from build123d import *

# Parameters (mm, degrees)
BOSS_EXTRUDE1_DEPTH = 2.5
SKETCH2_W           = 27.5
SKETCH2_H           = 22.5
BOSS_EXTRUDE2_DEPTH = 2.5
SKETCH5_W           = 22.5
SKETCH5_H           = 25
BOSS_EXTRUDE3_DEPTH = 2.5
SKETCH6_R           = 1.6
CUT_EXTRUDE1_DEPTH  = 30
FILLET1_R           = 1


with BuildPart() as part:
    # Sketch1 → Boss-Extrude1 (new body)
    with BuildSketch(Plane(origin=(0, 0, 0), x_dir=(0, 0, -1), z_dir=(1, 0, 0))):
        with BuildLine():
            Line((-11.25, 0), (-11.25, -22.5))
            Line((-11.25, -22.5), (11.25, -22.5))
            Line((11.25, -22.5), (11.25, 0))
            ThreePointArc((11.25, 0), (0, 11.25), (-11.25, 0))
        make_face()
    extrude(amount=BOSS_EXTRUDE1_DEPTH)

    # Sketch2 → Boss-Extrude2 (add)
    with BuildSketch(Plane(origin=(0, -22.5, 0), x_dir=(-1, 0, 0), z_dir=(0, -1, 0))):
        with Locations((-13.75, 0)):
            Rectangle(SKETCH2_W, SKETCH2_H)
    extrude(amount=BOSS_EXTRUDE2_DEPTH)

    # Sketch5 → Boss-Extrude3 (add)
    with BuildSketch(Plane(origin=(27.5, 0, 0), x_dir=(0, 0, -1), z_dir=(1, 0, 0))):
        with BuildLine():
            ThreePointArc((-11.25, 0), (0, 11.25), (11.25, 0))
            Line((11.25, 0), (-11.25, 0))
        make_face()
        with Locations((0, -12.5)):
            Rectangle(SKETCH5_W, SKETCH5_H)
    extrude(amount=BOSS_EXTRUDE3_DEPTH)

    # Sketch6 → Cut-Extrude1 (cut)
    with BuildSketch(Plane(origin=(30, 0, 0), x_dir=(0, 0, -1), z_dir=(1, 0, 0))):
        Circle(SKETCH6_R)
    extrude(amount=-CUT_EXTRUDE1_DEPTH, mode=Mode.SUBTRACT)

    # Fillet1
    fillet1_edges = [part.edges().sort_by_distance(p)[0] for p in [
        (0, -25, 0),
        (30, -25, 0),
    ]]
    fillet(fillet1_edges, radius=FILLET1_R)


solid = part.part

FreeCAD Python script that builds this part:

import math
import FreeCAD as App
import Part
import Sketcher
from FreeCAD import Vector


def edges_at(feature, points):
    """Names of the edges that pass closest to the given points."""
    edges = feature.Shape.Edges
    near = lambda p: min(range(len(edges)), key=lambda i: edges[i].distToShape(Part.Vertex(*p))[0])
    return sorted({f"Edge{near(p) + 1}" for p in points})

doc = App.newDocument("Part")
body = doc.addObject("PartDesign::Body", "Body")

sketch1 = body.newObject("Sketcher::SketchObject", "Sketch")
sketch1.AttachmentSupport = (doc.getObject("YZ_Plane"), [""])
sketch1.MapMode = "FlatFace"
sketch1.addGeometry(Part.LineSegment(Vector(0, 11, 0), Vector(-22, 11, 0)), False)
sketch1.addGeometry(Part.LineSegment(Vector(-22, 11, 0), Vector(-22, -11, 0)), False)
sketch1.addGeometry(Part.LineSegment(Vector(-22, -11, 0), Vector(0, -11, 0)), False)
sketch1.addGeometry(Part.ArcOfCircle(Part.Circle(Vector(0, 0, 0), Vector(0, 0, 1), 11), math.radians(-90), math.radians(90)), False)
sketch1.addConstraint(Sketcher.Constraint("Coincident", 0, 2, 1, 1))
sketch1.addConstraint(Sketcher.Constraint("Coincident", 1, 2, 2, 1))
sketch1.addConstraint(Sketcher.Constraint("Tangent", 2, 2, 3, 1))
sketch1.addConstraint(Sketcher.Constraint("Tangent", 3, 2, 0, 1))
sketch1.addConstraint(Sketcher.Constraint("Horizontal", 0))
sketch1.addConstraint(Sketcher.Constraint("Vertical", 1))
sketch1.addConstraint(Sketcher.Constraint("Horizontal", 2))
sketch1.addConstraint(Sketcher.Constraint("Coincident", 3, 3, -1, 1))
sketch1.addConstraint(Sketcher.Constraint("Equal", 2, 1))
sketch1.addConstraint(Sketcher.Constraint("Radius", 3, 11.25))
pad1 = body.newObject("PartDesign::Pad", "Pad")
pad1.Profile = sketch1
pad1.Length = 2.5

sketch2 = body.newObject("Sketcher::SketchObject", "Sketch001")
sketch2.AttachmentSupport = (doc.getObject("XZ_Plane"), [""])
sketch2.MapMode = "FlatFace"
sketch2.AttachmentOffset = App.Placement(Vector(0, 0, 22.5), App.Rotation())
sketch2.addGeometry(Part.LineSegment(Vector(28, -11, 0), Vector(28, 11, 0)), False)
sketch2.addGeometry(Part.LineSegment(Vector(28, 11, 0), Vector(0, 11, 0)), False)
sketch2.addGeometry(Part.LineSegment(Vector(0, 11, 0), Vector(0, -11, 0)), False)
sketch2.addGeometry(Part.LineSegment(Vector(0, -11, 0), Vector(28, -11, 0)), False)
sketch2.addConstraint(Sketcher.Constraint("Coincident", 0, 2, 1, 1))
sketch2.addConstraint(Sketcher.Constraint("Coincident", 1, 2, 2, 1))
sketch2.addConstraint(Sketcher.Constraint("Coincident", 2, 2, 3, 1))
sketch2.addConstraint(Sketcher.Constraint("Coincident", 3, 2, 0, 1))
sketch2.addConstraint(Sketcher.Constraint("Vertical", 0))
sketch2.addConstraint(Sketcher.Constraint("Horizontal", 1))
sketch2.addConstraint(Sketcher.Constraint("Vertical", 2))
sketch2.addConstraint(Sketcher.Constraint("Horizontal", 3))
sketch2.addConstraint(Sketcher.Constraint("Symmetric", 1, 2, 2, 2, -1, 1))
sketch2.addConstraint(Sketcher.Constraint("DistanceX", 1, 2, 1, 1, 27.5))
sketch2.addConstraint(Sketcher.Constraint("DistanceY", 0, 1, 0, 2, 22.5))
pad2 = body.newObject("PartDesign::Pad", "Pad001")
pad2.Profile = sketch2
pad2.Length = 2.5

sketch3 = body.newObject("Sketcher::SketchObject", "Sketch002")
sketch3.AttachmentSupport = (doc.getObject("YZ_Plane"), [""])
sketch3.MapMode = "FlatFace"
sketch3.AttachmentOffset = App.Placement(Vector(0, 0, 27.5), App.Rotation())
sketch3.addGeometry(Part.ArcOfCircle(Part.Circle(Vector(0, 0, 0), Vector(0, 0, 1), 11), math.radians(-90), math.radians(90)), False)
sketch3.addGeometry(Part.LineSegment(Vector(0, 11, 0), Vector(-25, 11, 0)), False)
sketch3.addGeometry(Part.LineSegment(Vector(-25, 11, 0), Vector(-25, -11, 0)), False)
sketch3.addGeometry(Part.LineSegment(Vector(-25, -11, 0), Vector(0, -11, 0)), False)
sketch3.addConstraint(Sketcher.Constraint("Tangent", 0, 2, 1, 1))
sketch3.addConstraint(Sketcher.Constraint("Coincident", 1, 2, 2, 1))
sketch3.addConstraint(Sketcher.Constraint("Coincident", 2, 2, 3, 1))
sketch3.addConstraint(Sketcher.Constraint("Tangent", 3, 2, 0, 1))
sketch3.addConstraint(Sketcher.Constraint("Horizontal", 1))
sketch3.addConstraint(Sketcher.Constraint("Vertical", 2))
sketch3.addConstraint(Sketcher.Constraint("Horizontal", 3))
sketch3.addConstraint(Sketcher.Constraint("Coincident", 0, 3, -1, 1))
sketch3.addConstraint(Sketcher.Constraint("DistanceX", 1, 2, 1, 1, 25.0))
sketch3.addConstraint(Sketcher.Constraint("Radius", 0, 11.25))
pad3 = body.newObject("PartDesign::Pad", "Pad002")
pad3.Profile = sketch3
pad3.Length = 2.5

sketch4 = body.newObject("Sketcher::SketchObject", "Sketch003")
sketch4.AttachmentSupport = (doc.getObject("YZ_Plane"), [""])
sketch4.MapMode = "FlatFace"
sketch4.AttachmentOffset = App.Placement(Vector(0, 0, 30), App.Rotation())
sketch4.addGeometry(Part.Circle(Vector(0, 0, 0), Vector(0, 0, 1), 1.6), False)
sketch4.addConstraint(Sketcher.Constraint("Coincident", 0, 3, -1, 1))
sketch4.addConstraint(Sketcher.Constraint("Diameter", 0, 3.2))
pocket1 = body.newObject("PartDesign::Pocket", "Pocket")
pocket1.Profile = sketch4
pocket1.Length = 30
doc.recompute()

fillet = body.newObject("PartDesign::Fillet", "Fillet")
fillet.Base = (pocket1, edges_at(pocket1, [(0, -25, 0), (30, -25, 0)]))
fillet.Radius = 1

doc.recompute()
